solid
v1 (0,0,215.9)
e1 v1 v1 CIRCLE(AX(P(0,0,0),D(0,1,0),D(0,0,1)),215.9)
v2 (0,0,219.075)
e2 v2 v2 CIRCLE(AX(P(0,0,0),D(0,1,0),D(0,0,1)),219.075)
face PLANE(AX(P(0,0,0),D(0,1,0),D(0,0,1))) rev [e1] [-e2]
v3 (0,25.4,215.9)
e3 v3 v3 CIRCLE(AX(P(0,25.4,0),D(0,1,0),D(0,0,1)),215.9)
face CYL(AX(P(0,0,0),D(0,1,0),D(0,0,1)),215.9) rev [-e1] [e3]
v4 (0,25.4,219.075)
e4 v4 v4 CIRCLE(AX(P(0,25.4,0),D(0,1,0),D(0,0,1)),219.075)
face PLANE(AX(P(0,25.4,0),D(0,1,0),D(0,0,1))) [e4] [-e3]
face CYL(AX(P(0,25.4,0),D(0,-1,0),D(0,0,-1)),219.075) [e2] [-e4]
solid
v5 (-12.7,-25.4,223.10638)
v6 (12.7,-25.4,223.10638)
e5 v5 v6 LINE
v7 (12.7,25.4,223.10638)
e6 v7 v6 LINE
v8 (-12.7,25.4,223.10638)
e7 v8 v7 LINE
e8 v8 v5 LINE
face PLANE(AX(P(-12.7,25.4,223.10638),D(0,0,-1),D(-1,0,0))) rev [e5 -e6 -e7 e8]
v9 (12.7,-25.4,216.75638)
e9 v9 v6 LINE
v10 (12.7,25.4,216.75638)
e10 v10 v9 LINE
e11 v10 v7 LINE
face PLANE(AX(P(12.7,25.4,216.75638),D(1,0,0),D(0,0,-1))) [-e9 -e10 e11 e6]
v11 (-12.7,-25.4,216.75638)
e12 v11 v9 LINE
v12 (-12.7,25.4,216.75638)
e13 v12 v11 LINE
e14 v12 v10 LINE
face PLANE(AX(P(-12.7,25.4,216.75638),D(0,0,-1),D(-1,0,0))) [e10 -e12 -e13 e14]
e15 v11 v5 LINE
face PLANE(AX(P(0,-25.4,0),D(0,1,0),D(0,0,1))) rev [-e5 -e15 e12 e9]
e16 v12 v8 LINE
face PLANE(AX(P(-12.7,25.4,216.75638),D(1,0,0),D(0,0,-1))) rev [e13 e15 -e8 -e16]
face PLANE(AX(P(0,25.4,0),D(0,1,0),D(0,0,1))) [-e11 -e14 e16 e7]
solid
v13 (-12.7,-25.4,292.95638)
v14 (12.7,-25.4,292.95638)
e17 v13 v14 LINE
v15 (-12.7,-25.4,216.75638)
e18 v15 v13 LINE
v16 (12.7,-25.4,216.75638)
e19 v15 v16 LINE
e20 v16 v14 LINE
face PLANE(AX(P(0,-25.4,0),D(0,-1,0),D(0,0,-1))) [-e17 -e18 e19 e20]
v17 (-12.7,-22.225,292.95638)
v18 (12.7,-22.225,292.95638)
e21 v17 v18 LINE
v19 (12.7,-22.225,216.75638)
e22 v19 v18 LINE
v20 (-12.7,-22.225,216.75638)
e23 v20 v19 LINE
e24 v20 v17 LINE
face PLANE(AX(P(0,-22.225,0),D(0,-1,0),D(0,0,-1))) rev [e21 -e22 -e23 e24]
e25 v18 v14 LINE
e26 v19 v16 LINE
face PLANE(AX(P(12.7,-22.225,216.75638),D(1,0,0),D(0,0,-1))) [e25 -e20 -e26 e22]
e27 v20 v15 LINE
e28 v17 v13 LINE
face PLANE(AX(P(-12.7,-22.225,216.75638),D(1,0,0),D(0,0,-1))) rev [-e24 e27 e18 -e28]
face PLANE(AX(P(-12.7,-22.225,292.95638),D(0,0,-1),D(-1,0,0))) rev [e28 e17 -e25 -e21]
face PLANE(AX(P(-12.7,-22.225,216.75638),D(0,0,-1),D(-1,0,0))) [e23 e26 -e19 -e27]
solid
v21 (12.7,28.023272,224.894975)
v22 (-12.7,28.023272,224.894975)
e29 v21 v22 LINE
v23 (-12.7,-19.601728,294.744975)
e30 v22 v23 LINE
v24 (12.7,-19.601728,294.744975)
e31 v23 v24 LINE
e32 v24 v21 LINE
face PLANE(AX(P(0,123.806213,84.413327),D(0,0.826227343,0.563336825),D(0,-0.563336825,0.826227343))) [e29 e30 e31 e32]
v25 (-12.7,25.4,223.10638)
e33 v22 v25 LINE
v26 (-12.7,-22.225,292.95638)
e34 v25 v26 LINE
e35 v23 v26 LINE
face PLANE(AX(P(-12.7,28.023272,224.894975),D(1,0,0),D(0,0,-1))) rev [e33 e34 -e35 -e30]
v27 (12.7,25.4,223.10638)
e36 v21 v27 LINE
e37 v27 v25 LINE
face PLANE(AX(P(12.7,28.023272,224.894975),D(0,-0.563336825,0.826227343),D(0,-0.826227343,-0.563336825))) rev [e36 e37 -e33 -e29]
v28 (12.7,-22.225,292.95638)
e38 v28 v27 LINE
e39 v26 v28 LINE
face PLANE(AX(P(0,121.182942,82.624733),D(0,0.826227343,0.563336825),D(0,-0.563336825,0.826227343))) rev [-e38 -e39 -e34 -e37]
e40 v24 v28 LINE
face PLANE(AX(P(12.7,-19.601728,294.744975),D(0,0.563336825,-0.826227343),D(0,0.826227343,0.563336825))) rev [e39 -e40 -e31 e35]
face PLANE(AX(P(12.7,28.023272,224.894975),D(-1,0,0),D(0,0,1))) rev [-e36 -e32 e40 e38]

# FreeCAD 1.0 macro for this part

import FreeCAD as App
import Part
import Sketcher
Q = App.Units.Quantity

doc = App.newDocument("Part")
body = doc.addObject("PartDesign::Body", "Body")

# Sketch on XZ plane
sketch1 = doc.addObject("Sketcher::SketchObject", "Sketch")
body.addObject(sketch1)
sketch1.AttachmentSupport = (doc.XZ_Plane, [""])
sketch1.MapMode = "FlatFace"
sketch1.addGeometry(Part.Circle(App.Vector(0, 0, 0), App.Vector(0, 0, 1), 219), False)
sketch1.addConstraint([
    Sketcher.Constraint("Coincident", 0, 3, -1, 1),
    Sketcher.Constraint("Diameter", 0, Q("17.25 in")),
])
pad1 = doc.addObject("PartDesign::Pad", "Pad")
body.addObject(pad1)
pad1.Profile = sketch1
pad1.Length = Q("1 in")
pad1.Reversed = True

# Sketch on XZ plane
sketch2 = doc.addObject("Sketcher::SketchObject", "Sketch001")
body.addObject(sketch2)
sketch2.AttachmentSupport = (doc.XZ_Plane, [""])
sketch2.MapMode = "FlatFace"
sketch2.AttachmentOffset = App.Placement(App.Vector(0, 0, -1 * 25.4), App.Rotation())
sketch2.addGeometry(Part.Circle(App.Vector(0, 0, 0), App.Vector(0, 0, 1), 216), False)
sketch2.addConstraint([
    Sketcher.Constraint("Coincident", 0, 3, -1, 1),
    Sketcher.Constraint("Diameter", 0, Q("17 in")),
])
pocket1 = doc.addObject("PartDesign::Pocket", "Pocket")
body.addObject(pocket1)
pocket1.Profile = sketch2
pocket1.Type = "ThroughAll"
pocket1.Reversed = True
body2 = doc.addObject("PartDesign::Body", "Body001")

# Sketch on XZ plane
sketch3 = doc.addObject("Sketcher::SketchObject", "Sketch002")
body2.addObject(sketch3)
sketch3.AttachmentSupport = (doc.getObject("XZ_Plane001"), [""])
sketch3.MapMode = "FlatFace"
sketch3.AttachmentOffset = App.Placement(App.Vector(0, 0, 1 * 25.4), App.Rotation())
sketch3.addGeometry([
    Part.LineSegment(App.Vector(-13, 217, 0), App.Vector(-13, 223, 0)),
    Part.LineSegment(App.Vector(-13, 223, 0), App.Vector(13, 223, 0)),
    Part.LineSegment(App.Vector(13, 223, 0), App.Vector(13, 217, 0)),
    Part.LineSegment(App.Vector(13, 217, 0), App.Vector(-13, 217, 0)),
], False)
sketch3.addConstraint([
    Sketcher.Constraint("Coincident", 0, 2, 1, 1),
    Sketcher.Constraint("Coincident", 1, 2, 2, 1),
    Sketcher.Constraint("Coincident", 2, 2, 3, 1),
    Sketcher.Constraint("Coincident", 3, 2, 0, 1),
    Sketcher.Constraint("Vertical", 0),
    Sketcher.Constraint("Horizontal", 1),
    Sketcher.Constraint("Vertical", 2),
    Sketcher.Constraint("Horizontal", 3),
    Sketcher.Constraint("DistanceX", 1, 1, 1, 2, Q("1 in")),
    Sketcher.Constraint("DistanceY", 0, 1, 0, 2, Q("0.25 in")),
    Sketcher.Constraint("DistanceX", 0, 2, -1, 1, Q("0.5 in")),
    Sketcher.Constraint("DistanceY", -1, 1, 0, 2, Q("223.10638 mm")),
])
pad2 = doc.addObject("PartDesign::Pad", "Pad001")
body2.addObject(pad2)
pad2.Profile = sketch3
pad2.Length = Q("2 in")
pad2.Reversed = True
body3 = doc.addObject("PartDesign::Body", "Body002")

# Sketch on XZ plane
sketch4 = doc.addObject("Sketcher::SketchObject", "Sketch003")
body3.addObject(sketch4)
sketch4.AttachmentSupport = (doc.getObject("XZ_Plane002"), [""])
sketch4.MapMode = "FlatFace"
sketch4.AttachmentOffset = App.Placement(App.Vector(0, 0, 1 * 25.4), App.Rotation())
sketch4.addGeometry([
    Part.LineSegment(App.Vector(-13, 217, 0), App.Vector(-13, 293, 0)),
    Part.LineSegment(App.Vector(-13, 293, 0), App.Vector(13, 293, 0)),
    Part.LineSegment(App.Vector(13, 293, 0), App.Vector(13, 217, 0)),
    Part.LineSegment(App.Vector(13, 217, 0), App.Vector(-13, 217, 0)),
], False)
sketch4.addConstraint([
    Sketcher.Constraint("Coincident", 0, 2, 1, 1),
    Sketcher.Constraint("Coincident", 1, 2, 2, 1),
    Sketcher.Constraint("Coincident", 2, 2, 3, 1),
    Sketcher.Constraint("Coincident", 3, 2, 0, 1),
    Sketcher.Constraint("Vertical", 0),
    Sketcher.Constraint("Horizontal", 1),
    Sketcher.Constraint("Vertical", 2),
    Sketcher.Constraint("Horizontal", 3),
    Sketcher.Constraint("DistanceX", 1, 1, 1, 2, Q("1 in")),
    Sketcher.Constraint("DistanceY", 0, 1, 0, 2, Q("3 in")),
    Sketcher.Constraint("DistanceX", 0, 2, -1, 1, Q("0.5 in")),
    Sketcher.Constraint("DistanceY", -1, 1, 0, 2, Q("292.95638 mm")),
])
pad3 = doc.addObject("PartDesign::Pad", "Pad002")
body3.addObject(pad3)
pad3.Profile = sketch4
pad3.Length = Q("0.125 in")
pad3.Reversed = True
body4 = doc.addObject("PartDesign::Body", "Body003")

# Sketch on an angled plane
sketch5 = doc.addObject("Sketcher::SketchObject", "Sketch004")
body4.addObject(sketch5)
sketch5.Placement = App.Placement(App.Vector(0, 121.182942, 82.624733), App.Rotation(App.Vector(0, -0.563336825, 0.826227343), App.Vector(1.000000001, 0, 0), App.Vector(0, 0.826227343, 0.563336825), "ZXY"))
sketch5.addGeometry([
    Part.LineSegment(App.Vector(170, 13, 0), App.Vector(170, -13, 0)),
    Part.LineSegment(App.Vector(170, -13, 0), App.Vector(255, -13, 0)),
    Part.LineSegment(App.Vector(255, -13, 0), App.Vector(255, 13, 0)),
    Part.LineSegment(App.Vector(255, 13, 0), App.Vector(170, 13, 0)),
], False)
sketch5.addConstraint([
    Sketcher.Constraint("Coincident", 0, 2, 1, 1),
    Sketcher.Constraint("Coincident", 1, 2, 2, 1),
    Sketcher.Constraint("Coincident", 2, 2, 3, 1),
    Sketcher.Constraint("Coincident", 3, 2, 0, 1),
    Sketcher.Constraint("Vertical", 0),
    Sketcher.Constraint("Horizontal", 1),
    Sketcher.Constraint("Vertical", 2),
    Sketcher.Constraint("Horizontal", 3),
    Sketcher.Constraint("DistanceY", 0, 2, 0, 1, Q("1 in")),
    Sketcher.Constraint("DistanceY", 0, 2, -1, 1, Q("0.5 in")),
    Sketcher.Constraint("DistanceX", 1, 1, 1, 2, Q("84.540896 mm")),
    Sketcher.Constraint("DistanceX", -1, 1, 0, 2, Q("170.027837 mm")),
])
pad4 = doc.addObject("PartDesign::Pad", "Pad003")
body4.addObject(pad4)
pad4.Profile = sketch5
pad4.Length = Q("0.125 in")

doc.recompute()
